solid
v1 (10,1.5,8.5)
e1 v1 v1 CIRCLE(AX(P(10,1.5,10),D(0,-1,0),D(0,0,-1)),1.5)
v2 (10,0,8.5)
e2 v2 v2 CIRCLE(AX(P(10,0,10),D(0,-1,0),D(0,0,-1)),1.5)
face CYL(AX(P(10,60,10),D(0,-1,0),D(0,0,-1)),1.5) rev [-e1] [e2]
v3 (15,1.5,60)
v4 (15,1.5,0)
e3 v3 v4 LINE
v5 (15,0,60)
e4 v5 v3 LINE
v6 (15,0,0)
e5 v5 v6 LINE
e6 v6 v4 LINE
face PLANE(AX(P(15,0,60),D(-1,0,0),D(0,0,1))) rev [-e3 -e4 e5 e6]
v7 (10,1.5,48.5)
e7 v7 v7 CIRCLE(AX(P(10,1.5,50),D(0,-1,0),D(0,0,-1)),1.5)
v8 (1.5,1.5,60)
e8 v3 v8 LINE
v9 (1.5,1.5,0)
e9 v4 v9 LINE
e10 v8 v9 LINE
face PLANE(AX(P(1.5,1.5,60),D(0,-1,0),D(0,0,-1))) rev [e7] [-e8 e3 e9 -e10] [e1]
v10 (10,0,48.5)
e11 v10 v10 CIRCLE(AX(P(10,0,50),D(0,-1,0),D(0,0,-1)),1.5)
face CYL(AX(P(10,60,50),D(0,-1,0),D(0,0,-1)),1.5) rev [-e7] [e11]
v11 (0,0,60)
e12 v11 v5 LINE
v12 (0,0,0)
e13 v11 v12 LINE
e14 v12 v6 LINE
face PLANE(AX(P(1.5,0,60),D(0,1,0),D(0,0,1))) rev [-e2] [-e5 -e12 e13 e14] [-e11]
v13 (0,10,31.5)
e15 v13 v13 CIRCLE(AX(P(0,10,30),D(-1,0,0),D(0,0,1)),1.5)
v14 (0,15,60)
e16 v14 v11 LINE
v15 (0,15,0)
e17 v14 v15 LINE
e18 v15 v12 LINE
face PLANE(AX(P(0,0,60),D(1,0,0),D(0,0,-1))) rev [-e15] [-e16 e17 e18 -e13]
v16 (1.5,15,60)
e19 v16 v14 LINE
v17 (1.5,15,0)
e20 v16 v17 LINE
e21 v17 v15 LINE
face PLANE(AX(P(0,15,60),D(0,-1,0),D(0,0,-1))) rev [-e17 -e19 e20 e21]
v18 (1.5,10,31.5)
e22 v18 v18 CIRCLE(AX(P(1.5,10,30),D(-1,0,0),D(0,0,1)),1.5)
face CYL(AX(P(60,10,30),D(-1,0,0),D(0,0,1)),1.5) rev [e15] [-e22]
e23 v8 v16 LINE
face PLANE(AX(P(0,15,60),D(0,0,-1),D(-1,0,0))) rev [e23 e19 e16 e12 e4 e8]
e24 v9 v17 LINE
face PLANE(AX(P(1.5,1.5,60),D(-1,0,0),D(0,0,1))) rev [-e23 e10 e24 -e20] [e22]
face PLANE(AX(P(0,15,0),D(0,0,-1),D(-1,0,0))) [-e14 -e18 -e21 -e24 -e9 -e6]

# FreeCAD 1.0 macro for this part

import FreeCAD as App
import Part
import Sketcher
Q = App.Units.Quantity


def add_polygon(sketch, points):
    """Adds a closed chain of lines whose ends are joined by coincident constraints."""
    first, n = sketch.GeometryCount, len(points)
    for a, b in zip(points, points[1:] + points[:1]):
        sketch.addGeometry(Part.LineSegment(App.Vector(*a, 0), App.Vector(*b, 0)), False)
    for i in range(n):
        sketch.addConstraint(Sketcher.Constraint("Coincident", first + i, 2, first + (i + 1) % n, 1))

doc = App.newDocument("Part")
params = doc.addObject("Spreadsheet::Sheet", "Params")
for row, (alias, value) in enumerate([
    ("sketch1_width", "15 mm"),
    ("sketch1_width2", "13.5 mm"),
    ("pad1_length", "60 mm"),
    ("sketch2_diameter", "3 mm"),
    ("pocket1_length", "60 mm"),
    ("sketch3_diameter", "3 mm"),
    ("pocket2_length", "60 mm"),
    ("linearpattern_pitch", "40 mm"),
], start=1):
    params.set(f"A{row}", alias)
    params.set(f"B{row}", "=" + value)
    params.setAlias(f"B{row}", alias)

body = doc.addObject("PartDesign::Body", "Body")

sketch1 = body.newObject("Sketcher::SketchObject", "Sketch")
sketch1.AttachmentSupport = (doc.getObject("XY_Plane"), [""])
sketch1.MapMode = "FlatFace"
add_polygon(sketch1, [(0, 0), (15, 0), (15, 1.5), (1.5, 1.5), (1.5, 15), (0, 15)])
sketch1.addConstraint([
    Sketcher.Constraint("Horizontal", 0),
    Sketcher.Constraint("Vertical", 1),
    Sketcher.Constraint("Horizontal", 2),
    Sketcher.Constraint("Vertical", 3),
    Sketcher.Constraint("Horizontal", 4),
    Sketcher.Constraint("Vertical", 5),
    Sketcher.Constraint("Coincident", 5, 2, -1, 1),
    Sketcher.Constraint("Equal", 4, 1),
    Sketcher.Constraint("Equal", 2, 3),
    Sketcher.Constraint("DistanceX", 0, 1, 0, 2, Q("15 mm")),
    Sketcher.Constraint("DistanceX", 2, 2, 2, 1, Q("13.5 mm")),
])
sketch1.setExpression("Constraints[15]", "Params.sketch1_width")
sketch1.setExpression("Constraints[16]", "Params.sketch1_width2")
pad1 = body.newObject("PartDesign::Pad", "Pad")
pad1.Profile = sketch1
pad1.setExpression("Length", "Params.pad1_length")

sketch2 = body.newObject("Sketcher::SketchObject", "Sketch001")
sketch2.AttachmentSupport = (doc.getObject("YZ_Plane"), [""])
sketch2.MapMode = "FlatFace"
sketch2.addGeometry(Part.Circle(App.Vector(10, 30, 0), App.Vector(0, 0, 1), 1.5), False)
sketch2.addConstraint([
    Sketcher.Constraint("Diameter", 0, Q("3 mm")),
    Sketcher.Constraint("DistanceX", -1, 1, 0, 3, Q("10 mm")),
    Sketcher.Constraint("DistanceY", -1, 1, 0, 3, Q("30 mm")),
])
sketch2.setExpression("Constraints[0]", "Params.sketch2_diameter")
pocket1 = body.newObject("PartDesign::Pocket", "Pocket")
pocket1.Profile = sketch2
pocket1.setExpression("Length", "Params.pocket1_length")
pocket1.Reversed = True

sketch3 = body.newObject("Sketcher::SketchObject", "Sketch002")
sketch3.AttachmentSupport = (doc.getObject("XZ_Plane"), [""])
sketch3.MapMode = "FlatFace"
sketch3.addGeometry(Part.Circle(App.Vector(10, 10, 0), App.Vector(0, 0, 1), 1.5), False)
sketch3.addConstraint([
    Sketcher.Constraint("Diameter", 0, Q("3 mm")),
    Sketcher.Constraint("DistanceX", -1, 1, 0, 3, Q("10 mm")),
    Sketcher.Constraint("DistanceY", -1, 1, 0, 3, Q("10 mm")),
])
sketch3.setExpression("Constraints[0]", "Params.sketch3_diameter")
pocket2 = body.newObject("PartDesign::Pocket", "Pocket001")
pocket2.Profile = sketch3
pocket2.setExpression("Length", "Params.pocket2_length")
doc.recompute()

linearpattern = body.newObject("PartDesign::LinearPattern", "LinearPattern")
linearpattern.Originals = [pocket2]
linearpattern.Direction = (doc.getObject("Z_Axis"), [""])
linearpattern.Mode = "offset"
linearpattern.setExpression("Offset", "Params.linearpattern_pitch")
linearpattern.Occurrences = 2
body.Tip = linearpattern

doc.recompute()
